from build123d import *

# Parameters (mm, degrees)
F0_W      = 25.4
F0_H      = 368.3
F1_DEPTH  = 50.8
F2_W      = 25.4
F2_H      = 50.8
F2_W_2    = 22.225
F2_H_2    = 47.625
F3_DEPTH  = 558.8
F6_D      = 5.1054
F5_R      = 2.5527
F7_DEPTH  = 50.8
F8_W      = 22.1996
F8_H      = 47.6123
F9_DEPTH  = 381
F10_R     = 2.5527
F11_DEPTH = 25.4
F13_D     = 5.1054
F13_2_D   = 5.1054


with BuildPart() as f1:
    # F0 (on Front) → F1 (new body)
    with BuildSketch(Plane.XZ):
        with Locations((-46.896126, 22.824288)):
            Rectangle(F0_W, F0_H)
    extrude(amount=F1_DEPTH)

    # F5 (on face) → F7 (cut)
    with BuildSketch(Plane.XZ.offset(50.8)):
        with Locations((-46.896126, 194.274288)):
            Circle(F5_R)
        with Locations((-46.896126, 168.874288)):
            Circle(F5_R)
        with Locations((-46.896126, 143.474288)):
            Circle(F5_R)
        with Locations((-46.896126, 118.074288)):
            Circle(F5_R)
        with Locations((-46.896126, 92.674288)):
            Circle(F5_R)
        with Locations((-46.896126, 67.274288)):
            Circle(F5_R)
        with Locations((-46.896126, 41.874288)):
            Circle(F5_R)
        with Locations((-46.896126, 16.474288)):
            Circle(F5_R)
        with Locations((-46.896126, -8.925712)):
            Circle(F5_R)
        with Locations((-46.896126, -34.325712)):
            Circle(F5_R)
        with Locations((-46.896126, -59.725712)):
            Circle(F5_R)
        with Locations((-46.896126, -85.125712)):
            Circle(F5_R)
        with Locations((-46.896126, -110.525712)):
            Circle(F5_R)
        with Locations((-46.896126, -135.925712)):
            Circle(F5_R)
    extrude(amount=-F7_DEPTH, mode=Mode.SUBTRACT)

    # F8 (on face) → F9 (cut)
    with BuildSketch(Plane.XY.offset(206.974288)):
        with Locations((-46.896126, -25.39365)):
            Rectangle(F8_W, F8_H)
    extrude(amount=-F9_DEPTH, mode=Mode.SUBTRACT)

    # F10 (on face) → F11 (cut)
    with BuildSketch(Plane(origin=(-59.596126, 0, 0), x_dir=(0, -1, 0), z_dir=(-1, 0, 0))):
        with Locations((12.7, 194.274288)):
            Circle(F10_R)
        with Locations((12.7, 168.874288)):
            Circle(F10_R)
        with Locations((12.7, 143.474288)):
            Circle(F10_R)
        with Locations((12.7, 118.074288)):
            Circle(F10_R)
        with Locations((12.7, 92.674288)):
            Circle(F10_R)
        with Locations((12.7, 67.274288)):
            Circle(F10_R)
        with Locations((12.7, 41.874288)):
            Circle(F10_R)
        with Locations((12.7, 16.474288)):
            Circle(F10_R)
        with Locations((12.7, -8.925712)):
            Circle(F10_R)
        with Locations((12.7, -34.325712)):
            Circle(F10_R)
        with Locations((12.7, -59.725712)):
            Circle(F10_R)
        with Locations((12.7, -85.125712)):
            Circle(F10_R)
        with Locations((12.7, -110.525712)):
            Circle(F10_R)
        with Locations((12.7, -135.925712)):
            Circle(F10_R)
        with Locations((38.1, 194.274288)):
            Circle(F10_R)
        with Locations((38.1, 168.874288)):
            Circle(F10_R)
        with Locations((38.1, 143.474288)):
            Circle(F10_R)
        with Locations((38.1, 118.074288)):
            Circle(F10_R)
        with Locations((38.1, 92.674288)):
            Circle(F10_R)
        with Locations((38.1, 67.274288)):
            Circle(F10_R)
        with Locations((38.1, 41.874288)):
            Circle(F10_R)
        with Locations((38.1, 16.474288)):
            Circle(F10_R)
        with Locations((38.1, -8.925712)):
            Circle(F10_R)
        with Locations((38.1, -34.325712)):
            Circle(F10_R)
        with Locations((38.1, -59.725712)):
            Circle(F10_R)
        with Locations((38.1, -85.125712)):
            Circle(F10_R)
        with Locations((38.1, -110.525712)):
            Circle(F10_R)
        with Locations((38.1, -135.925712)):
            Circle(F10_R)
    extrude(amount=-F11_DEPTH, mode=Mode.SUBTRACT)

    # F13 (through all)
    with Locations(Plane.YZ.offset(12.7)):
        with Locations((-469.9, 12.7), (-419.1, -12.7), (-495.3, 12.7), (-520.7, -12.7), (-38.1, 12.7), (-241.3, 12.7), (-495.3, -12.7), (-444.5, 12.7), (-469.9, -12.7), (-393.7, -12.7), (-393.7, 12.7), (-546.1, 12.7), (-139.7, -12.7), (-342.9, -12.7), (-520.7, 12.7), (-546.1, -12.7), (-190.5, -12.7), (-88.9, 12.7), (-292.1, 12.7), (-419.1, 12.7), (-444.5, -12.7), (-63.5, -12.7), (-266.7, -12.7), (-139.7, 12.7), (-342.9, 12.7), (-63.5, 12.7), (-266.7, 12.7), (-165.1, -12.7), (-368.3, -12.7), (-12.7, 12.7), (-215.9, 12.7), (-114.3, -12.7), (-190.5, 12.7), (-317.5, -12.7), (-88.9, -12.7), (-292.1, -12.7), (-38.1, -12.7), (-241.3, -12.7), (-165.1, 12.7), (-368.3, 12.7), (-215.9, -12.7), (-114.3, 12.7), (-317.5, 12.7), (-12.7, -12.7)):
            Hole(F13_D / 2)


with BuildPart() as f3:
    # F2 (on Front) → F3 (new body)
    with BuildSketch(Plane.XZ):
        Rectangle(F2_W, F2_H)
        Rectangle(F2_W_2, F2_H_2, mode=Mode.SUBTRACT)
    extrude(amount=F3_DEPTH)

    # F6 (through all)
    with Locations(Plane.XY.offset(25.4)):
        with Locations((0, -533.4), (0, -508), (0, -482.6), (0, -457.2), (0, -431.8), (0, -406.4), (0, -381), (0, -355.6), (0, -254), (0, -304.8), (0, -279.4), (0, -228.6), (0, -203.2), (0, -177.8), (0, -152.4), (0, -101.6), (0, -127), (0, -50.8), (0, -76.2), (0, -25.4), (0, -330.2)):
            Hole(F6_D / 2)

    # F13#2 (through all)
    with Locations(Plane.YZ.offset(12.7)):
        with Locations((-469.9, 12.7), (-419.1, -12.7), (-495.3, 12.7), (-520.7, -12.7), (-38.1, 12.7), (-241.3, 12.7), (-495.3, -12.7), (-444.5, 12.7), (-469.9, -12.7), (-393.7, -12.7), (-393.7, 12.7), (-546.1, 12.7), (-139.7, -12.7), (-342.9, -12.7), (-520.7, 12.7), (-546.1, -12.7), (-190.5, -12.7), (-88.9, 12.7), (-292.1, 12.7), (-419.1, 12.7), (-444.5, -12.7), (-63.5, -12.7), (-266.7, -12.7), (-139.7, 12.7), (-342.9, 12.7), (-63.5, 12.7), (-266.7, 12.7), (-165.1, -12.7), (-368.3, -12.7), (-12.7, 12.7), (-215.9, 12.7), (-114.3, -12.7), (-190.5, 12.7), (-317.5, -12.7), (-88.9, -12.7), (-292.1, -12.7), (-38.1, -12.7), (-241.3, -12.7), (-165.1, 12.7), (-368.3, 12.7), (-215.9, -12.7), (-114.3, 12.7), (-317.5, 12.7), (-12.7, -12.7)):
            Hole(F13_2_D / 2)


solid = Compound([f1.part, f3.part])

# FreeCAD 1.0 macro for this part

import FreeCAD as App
import Part
import Sketcher
from FreeCAD import Vector
Q = App.Units.Quantity

doc = App.newDocument("Part")
body = doc.addObject("PartDesign::Body", "Body")

# Sketch on XZ plane
sketch1 = body.newObject("Sketcher::SketchObject", "Sketch")
sketch1.AttachmentSupport = (doc.getObject("XZ_Plane"), [""])
sketch1.MapMode = "FlatFace"
sketch1.addGeometry([
    Part.LineSegment(Vector(-60, 207, 0), Vector(-60, -161, 0)),
    Part.LineSegment(Vector(-60, -161, 0), Vector(-34, -161, 0)),
    Part.LineSegment(Vector(-34, -161, 0), Vector(-34, 207, 0)),
    Part.LineSegment(Vector(-34, 207, 0), Vector(-60, 207, 0)),
], False)
sketch1.addConstraint([
    Sketcher.Constraint("Coincident", 0, 2, 1, 1),
    Sketcher.Constraint("Coincident", 1, 2, 2, 1),
    Sketcher.Constraint("Coincident", 2, 2, 3, 1),
    Sketcher.Constraint("Coincident", 3, 2, 0, 1),
    Sketcher.Constraint("Vertical", 0),
    Sketcher.Constraint("Horizontal", 1),
    Sketcher.Constraint("Vertical", 2),
    Sketcher.Constraint("Horizontal", 3),
    Sketcher.Constraint("DistanceX", 1, 1, 1, 2, Q("1 in")),
    Sketcher.Constraint("DistanceY", 0, 2, 0, 1, Q("14.5 in")),
    Sketcher.Constraint("DistanceY", -1, 1, 2, 2, 206.974288),
    Sketcher.Constraint("DistanceX", 0, 2, -1, 1, 59.596126),
])
pad1 = body.newObject("PartDesign::Pad", "Pad")
pad1.Profile = sketch1
pad1.Length = Q("2 in")

# Sketch on XZ plane
sketch2 = body.newObject("Sketcher::SketchObject", "Sketch001")
sketch2.AttachmentSupport = (doc.getObject("XZ_Plane"), [""])
sketch2.MapMode = "FlatFace"
sketch2.AttachmentOffset = App.Placement(Vector(0, 0, 2 * 25.4), App.Rotation())
sketch2.addGeometry([
    Part.Circle(Vector(-46.9, 194.3, 0), Vector(0, 0, 1), 2.6),  # 0
    Part.Circle(Vector(-46.9, 168.9, 0), Vector(0, 0, 1), 2.6),  # 1
    Part.Circle(Vector(-46.9, 143.5, 0), Vector(0, 0, 1), 2.6),  # 2
    Part.Circle(Vector(-46.9, 118.1, 0), Vector(0, 0, 1), 2.6),  # 3
    Part.Circle(Vector(-46.9, 92.7, 0), Vector(0, 0, 1), 2.6),  # 4
    Part.Circle(Vector(-46.9, 67.3, 0), Vector(0, 0, 1), 2.6),  # 5
    Part.Circle(Vector(-46.9, 41.9, 0), Vector(0, 0, 1), 2.6),  # 6
    Part.Circle(Vector(-46.9, 16.5, 0), Vector(0, 0, 1), 2.6),  # 7
    Part.Circle(Vector(-46.9, -8.9, 0), Vector(0, 0, 1), 2.6),  # 8
    Part.Circle(Vector(-46.9, -34.3, 0), Vector(0, 0, 1), 2.6),  # 9
    Part.Circle(Vector(-46.9, -59.7, 0), Vector(0, 0, 1), 2.6),  # 10
    Part.Circle(Vector(-46.9, -85.1, 0), Vector(0, 0, 1), 2.6),  # 11
    Part.Circle(Vector(-46.9, -110.5, 0), Vector(0, 0, 1), 2.6),  # 12
    Part.Circle(Vector(-46.9, -135.9, 0), Vector(0, 0, 1), 2.6),  # 13
], False)
sketch2.addConstraint([
    Sketcher.Constraint("Equal", 0, 1),
    Sketcher.Constraint("Equal", 1, 2),
    Sketcher.Constraint("Equal", 2, 3),
    Sketcher.Constraint("Equal", 3, 4),
    Sketcher.Constraint("Equal", 4, 5),
    Sketcher.Constraint("Equal", 5, 6),
    Sketcher.Constraint("Equal", 6, 7),
    Sketcher.Constraint("Equal", 7, 8),
    Sketcher.Constraint("Equal", 8, 9),
    Sketcher.Constraint("Equal", 9, 10),
    Sketcher.Constraint("Equal", 10, 11),
    Sketcher.Constraint("Equal", 11, 12),
    Sketcher.Constraint("Equal", 12, 13),
    Sketcher.Constraint("Vertical", 0, 3, 1, 3),
    Sketcher.Constraint("Vertical", 1, 3, 2, 3),
    Sketcher.Constraint("Vertical", 2, 3, 3, 3),
    Sketcher.Constraint("Vertical", 3, 3, 4, 3),
    Sketcher.Constraint("Vertical", 4, 3, 5, 3),
    Sketcher.Constraint("Vertical", 5, 3, 6, 3),
    Sketcher.Constraint("Vertical", 6, 3, 7, 3),
    Sketcher.Constraint("Vertical", 7, 3, 8, 3),
    Sketcher.Constraint("Vertical", 8, 3, 9, 3),
    Sketcher.Constraint("Vertical", 9, 3, 10, 3),
    Sketcher.Constraint("Vertical", 10, 3, 11, 3),
    Sketcher.Constraint("Vertical", 11, 3, 12, 3),
    Sketcher.Constraint("Vertical", 12, 3, 13, 3),
    Sketcher.Constraint("Diameter", 0, Q("0.201 in")),
    Sketcher.Constraint("DistanceY", 1, 3, 0, 3, Q("1 in")),
    Sketcher.Constraint("DistanceY", 2, 3, 1, 3, Q("1 in")),
    Sketcher.Constraint("DistanceY", 3, 3, 2, 3, Q("1 in")),
    Sketcher.Constraint("DistanceY", 4, 3, 3, 3, Q("1 in")),
    Sketcher.Constraint("DistanceY", 5, 3, 4, 3, Q("1 in")),
    Sketcher.Constraint("DistanceY", 6, 3, 5, 3, Q("1 in")),
    Sketcher.Constraint("DistanceY", 7, 3, 6, 3, Q("1 in")),
    Sketcher.Constraint("DistanceY", 8, 3, 7, 3, Q("1 in")),
    Sketcher.Constraint("DistanceY", 9, 3, 8, 3, Q("1 in")),
    Sketcher.Constraint("DistanceY", 10, 3, 9, 3, Q("1 in")),
    Sketcher.Constraint("DistanceY", 11, 3, 10, 3, Q("1 in")),
    Sketcher.Constraint("DistanceY", 12, 3, 11, 3, Q("1 in")),
    Sketcher.Constraint("DistanceY", 13, 3, 12, 3, Q("1 in")),
    Sketcher.Constraint("DistanceY", -1, 1, 0, 3, 194.274288),
    Sketcher.Constraint("DistanceX", 0, 3, -1, 1, 46.896126),
])
pocket1 = body.newObject("PartDesign::Pocket", "Pocket")
pocket1.Profile = sketch2
pocket1.Length = Q("2 in")

# Sketch on XY plane
sketch3 = body.newObject("Sketcher::SketchObject", "Sketch002")
sketch3.AttachmentSupport = (doc.getObject("XY_Plane"), [""])
sketch3.MapMode = "FlatFace"
sketch3.AttachmentOffset = App.Placement(Vector(0, 0, 206.974288), App.Rotation())
sketch3.addGeometry([
    Part.LineSegment(Vector(-58, -2, 0), Vector(-58, -49, 0)),
    Part.LineSegment(Vector(-58, -49, 0), Vector(-36, -49, 0)),
    Part.LineSegment(Vector(-36, -49, 0), Vector(-36, -2, 0)),
    Part.LineSegment(Vector(-36, -2, 0), Vector(-58, -2, 0)),
], False)
sketch3.addConstraint([
    Sketcher.Constraint("Coincident", 0, 2, 1, 1),
    Sketcher.Constraint("Coincident", 1, 2, 2, 1),
    Sketcher.Constraint("Coincident", 2, 2, 3, 1),
    Sketcher.Constraint("Coincident", 3, 2, 0, 1),
    Sketcher.Constraint("Vertical", 0),
    Sketcher.Constraint("Horizontal", 1),
    Sketcher.Constraint("Vertical", 2),
    Sketcher.Constraint("Horizontal", 3),
    Sketcher.Constraint("DistanceX", 1, 1, 1, 2, Q("0.874 in")),
    Sketcher.Constraint("DistanceY", 0, 2, 0, 1, Q("1.8745 in")),
    Sketcher.Constraint("DistanceY", 0, 2, -1, 1, Q("1.937 in")),
    Sketcher.Constraint("DistanceX", 0, 2, -1, 1, 57.995926),
])
pocket2 = body.newObject("PartDesign::Pocket", "Pocket001")
pocket2.Profile = sketch3
pocket2.Length = Q("15 in")

# Sketch on YZ plane
sketch4 = body.newObject("Sketcher::SketchObject", "Sketch003")
sketch4.AttachmentSupport = (doc.getObject("YZ_Plane"), [""])
sketch4.MapMode = "FlatFace"
sketch4.AttachmentOffset = App.Placement(Vector(0, 0, -59.596126), App.Rotation())
sketch4.addGeometry([
    Part.Circle(Vector(-12.7, 194.3, 0), Vector(0, 0, 1), 2.6),  # 0
    Part.Circle(Vector(-12.7, 168.9, 0), Vector(0, 0, 1), 2.6),  # 1
    Part.Circle(Vector(-12.7, 143.5, 0), Vector(0, 0, 1), 2.6),  # 2
    Part.Circle(Vector(-12.7, 118.1, 0), Vector(0, 0, 1), 2.6),  # 3
    Part.Circle(Vector(-12.7, 92.7, 0), Vector(0, 0, 1), 2.6),  # 4
    Part.Circle(Vector(-12.7, 67.3, 0), Vector(0, 0, 1), 2.6),  # 5
    Part.Circle(Vector(-12.7, 41.9, 0), Vector(0, 0, 1), 2.6),  # 6
    Part.Circle(Vector(-12.7, 16.5, 0), Vector(0, 0, 1), 2.6),  # 7
    Part.Circle(Vector(-12.7, -8.9, 0), Vector(0, 0, 1), 2.6),  # 8
    Part.Circle(Vector(-12.7, -34.3, 0), Vector(0, 0, 1), 2.6),  # 9
    Part.Circle(Vector(-12.7, -59.7, 0), Vector(0, 0, 1), 2.6),  # 10
    Part.Circle(Vector(-12.7, -85.1, 0), Vector(0, 0, 1), 2.6),  # 11
    Part.Circle(Vector(-12.7, -110.5, 0), Vector(0, 0, 1), 2.6),  # 12
    Part.Circle(Vector(-12.7, -135.9, 0), Vector(0, 0, 1), 2.6),  # 13
    Part.Circle(Vector(-38.1, 194.3, 0), Vector(0, 0, 1), 2.6),  # 14
    Part.Circle(Vector(-38.1, 168.9, 0), Vector(0, 0, 1), 2.6),  # 15
    Part.Circle(Vector(-38.1, 143.5, 0), Vector(0, 0, 1), 2.6),  # 16
    Part.Circle(Vector(-38.1, 118.1, 0), Vector(0, 0, 1), 2.6),  # 17
    Part.Circle(Vector(-38.1, 92.7, 0), Vector(0, 0, 1), 2.6),  # 18
    Part.Circle(Vector(-38.1, 67.3, 0), Vector(0, 0, 1), 2.6),  # 19
    Part.Circle(Vector(-38.1, 41.9, 0), Vector(0, 0, 1), 2.6),  # 20
    Part.Circle(Vector(-38.1, 16.5, 0), Vector(0, 0, 1), 2.6),  # 21
    Part.Circle(Vector(-38.1, -8.9, 0), Vector(0, 0, 1), 2.6),  # 22
    Part.Circle(Vector(-38.1, -34.3, 0), Vector(0, 0, 1), 2.6),  # 23
    Part.Circle(Vector(-38.1, -59.7, 0), Vector(0, 0, 1), 2.6),  # 24
    Part.Circle(Vector(-38.1, -85.1, 0), Vector(0, 0, 1), 2.6),  # 25
    Part.Circle(Vector(-38.1, -110.5, 0), Vector(0, 0, 1), 2.6),  # 26
    Part.Circle(Vector(-38.1, -135.9, 0), Vector(0, 0, 1), 2.6),  # 27
], False)
sketch4.addConstraint([
    Sketcher.Constraint("Equal", 0, 1),
    Sketcher.Constraint("Equal", 1, 2),
    Sketcher.Constraint("Equal", 2, 3),
    Sketcher.Constraint("Equal", 3, 4),
    Sketcher.Constraint("Equal", 4, 5),
    Sketcher.Constraint("Equal", 5, 6),
    Sketcher.Constraint("Equal", 6, 7),
    Sketcher.Constraint("Equal", 7, 8),
    Sketcher.Constraint("Equal", 8, 9),
    Sketcher.Constraint("Equal", 9, 10),
    Sketcher.Constraint("Equal", 10, 11),
    Sketcher.Constraint("Equal", 11, 12),
    Sketcher.Constraint("Equal", 12, 13),
    Sketcher.Constraint("Equal", 13, 14),
    Sketcher.Constraint("Equal", 14, 15),
    Sketcher.Constraint("Equal", 15, 16),
    Sketcher.Constraint("Equal", 16, 17),
    Sketcher.Constraint("Equal", 17, 18),
    Sketcher.Constraint("Equal", 18, 19),
    Sketcher.Constraint("Equal", 19, 20),
    Sketcher.Constraint("Equal", 20, 21),
    Sketcher.Constraint("Equal", 21, 22),
    Sketcher.Constraint("Equal", 22, 23),
    Sketcher.Constraint("Equal", 23, 24),
    Sketcher.Constraint("Equal", 24, 25),
    Sketcher.Constraint("Equal", 25, 26),
    Sketcher.Constraint("Equal", 26, 27),
    Sketcher.Constraint("Horizontal", 0, 3, 14, 3),
    Sketcher.Constraint("Horizontal", 1, 3, 15, 3),
    Sketcher.Constraint("Horizontal", 2, 3, 16, 3),
    Sketcher.Constraint("Horizontal", 3, 3, 17, 3),
    Sketcher.Constraint("Horizontal", 4, 3, 18, 3),
    Sketcher.Constraint("Horizontal", 5, 3, 19, 3),
    Sketcher.Constraint("Horizontal", 6, 3, 20, 3),
    Sketcher.Constraint("Horizontal", 7, 3, 21, 3),
    Sketcher.Constraint("Horizontal", 8, 3, 22, 3),
    Sketcher.Constraint("Horizontal", 9, 3, 23, 3),
    Sketcher.Constraint("Horizontal", 10, 3, 24, 3),
    Sketcher.Constraint("Horizontal", 11, 3, 25, 3),
    Sketcher.Constraint("Horizontal", 12, 3, 26, 3),
    Sketcher.Constraint("Horizontal", 13, 3, 27, 3),
    Sketcher.Constraint("Vertical", 0, 3, 1, 3),
    Sketcher.Constraint("Vertical", 1, 3, 2, 3),
    Sketcher.Constraint("Vertical", 2, 3, 3, 3),
    Sketcher.Constraint("Vertical", 3, 3, 4, 3),
    Sketcher.Constraint("Vertical", 4, 3, 5, 3),
    Sketcher.Constraint("Vertical", 5, 3, 6, 3),
    Sketcher.Constraint("Vertical", 6, 3, 7, 3),
    Sketcher.Constraint("Vertical", 7, 3, 8, 3),
    Sketcher.Constraint("Vertical", 8, 3, 9, 3),
    Sketcher.Constraint("Vertical", 9, 3, 10, 3),
    Sketcher.Constraint("Vertical", 10, 3, 11, 3),
    Sketcher.Constraint("Vertical", 11, 3, 12, 3),
    Sketcher.Constraint("Vertical", 12, 3, 13, 3),
    Sketcher.Constraint("Vertical", 14, 3, 15, 3),
    Sketcher.Constraint("Vertical", 15, 3, 16, 3),
    Sketcher.Constraint("Vertical", 16, 3, 17, 3),
    Sketcher.Constraint("Vertical", 17, 3, 18, 3),
    Sketcher.Constraint("Vertical", 18, 3, 19, 3),
    Sketcher.Constraint("Vertical", 19, 3, 20, 3),
    Sketcher.Constraint("Vertical", 20, 3, 21, 3),
    Sketcher.Constraint("Vertical", 21, 3, 22, 3),
    Sketcher.Constraint("Vertical", 22, 3, 23, 3),
    Sketcher.Constraint("Vertical", 23, 3, 24, 3),
    Sketcher.Constraint("Vertical", 24, 3, 25, 3),
    Sketcher.Constraint("Vertical", 25, 3, 26, 3),
    Sketcher.Constraint("Vertical", 26, 3, 27, 3),
    Sketcher.Constraint("Diameter", 0, Q("0.201 in")),
    Sketcher.Constraint("DistanceY", 1, 3, 0, 3, Q("1 in")),
    Sketcher.Constraint("DistanceY", 2, 3, 1, 3, Q("1 in")),
    Sketcher.Constraint("DistanceY", 3, 3, 2, 3, Q("1 in")),
    Sketcher.Constraint("DistanceY", 4, 3, 3, 3, Q("1 in")),
    Sketcher.Constraint("DistanceY", 5, 3, 4, 3, Q("1 in")),
    Sketcher.Constraint("DistanceY", 6, 3, 5, 3, Q("1 in")),
    Sketcher.Constraint("DistanceY", 7, 3, 6, 3, Q("1 in")),
    Sketcher.Constraint("DistanceY", 8, 3, 7, 3, Q("1 in")),
    Sketcher.Constraint("DistanceY", 9, 3, 8, 3, Q("1 in")),
    Sketcher.Constraint("DistanceY", 10, 3, 9, 3, Q("1 in")),
    Sketcher.Constraint("DistanceY", 11, 3, 10, 3, Q("1 in")),
    Sketcher.Constraint("DistanceY", 12, 3, 11, 3, Q("1 in")),
    Sketcher.Constraint("DistanceY", 13, 3, 12, 3, Q("1 in")),
    Sketcher.Constraint("DistanceX", 14, 3, 0, 3, Q("1 in")),
    Sketcher.Constraint("DistanceX", 0, 3, -1, 1, Q("0.5 in")),
    Sketcher.Constraint("DistanceY", -1, 1, 0, 3, 194.274288),
])
pocket3 = body.newObject("PartDesign::Pocket", "Pocket002")
pocket3.Profile = sketch4
pocket3.Length = Q("1 in")
pocket3.Reversed = True

# Sketch on YZ plane
sketch5 = body.newObject("Sketcher::SketchObject", "Sketch004")
sketch5.AttachmentSupport = (doc.getObject("YZ_Plane"), [""])
sketch5.MapMode = "FlatFace"
sketch5.AttachmentOffset = App.Placement(Vector(0, 0, 0.5 * 25.4), App.Rotation())
sketch5.addGeometry([
    Part.Circle(Vector(-469.9, 12.7, 0), Vector(0, 0, 1), 2.6),  # 0
    Part.Circle(Vector(-419.1, -12.7, 0), Vector(0, 0, 1), 2.6),  # 1
    Part.Circle(Vector(-495.3, 12.7, 0), Vector(0, 0, 1), 2.6),  # 2
    Part.Circle(Vector(-520.7, -12.7, 0), Vector(0, 0, 1), 2.6),  # 3
    Part.Circle(Vector(-38.1, 12.7, 0), Vector(0, 0, 1), 2.6),  # 4
    Part.Circle(Vector(-241.3, 12.7, 0), Vector(0, 0, 1), 2.6),  # 5
    Part.Circle(Vector(-495.3, -12.7, 0), Vector(0, 0, 1), 2.6),  # 6
    Part.Circle(Vector(-444.5, 12.7, 0), Vector(0, 0, 1), 2.6),  # 7
    Part.Circle(Vector(-469.9, -12.7, 0), Vector(0, 0, 1), 2.6),  # 8
    Part.Circle(Vector(-393.7, -12.7, 0), Vector(0, 0, 1), 2.6),  # 9
    Part.Circle(Vector(-393.7, 12.7, 0), Vector(0, 0, 1), 2.6),  # 10
    Part.Circle(Vector(-546.1, 12.7, 0), Vector(0, 0, 1), 2.6),  # 11
    Part.Circle(Vector(-139.7, -12.7, 0), Vector(0, 0, 1), 2.6),  # 12
    Part.Circle(Vector(-342.9, -12.7, 0), Vector(0, 0, 1), 2.6),  # 13
    Part.Circle(Vector(-520.7, 12.7, 0), Vector(0, 0, 1), 2.6),  # 14
    Part.Circle(Vector(-546.1, -12.7, 0), Vector(0, 0, 1), 2.6),  # 15
    Part.Circle(Vector(-190.5, -12.7, 0), Vector(0, 0, 1), 2.6),  # 16
    Part.Circle(Vector(-88.9, 12.7, 0), Vector(0, 0, 1), 2.6),  # 17
    Part.Circle(Vector(-292.1, 12.7, 0), Vector(0, 0, 1), 2.6),  # 18
    Part.Circle(Vector(-419.1, 12.7, 0), Vector(0, 0, 1), 2.6),  # 19
    Part.Circle(Vector(-444.5, -12.7, 0), Vector(0, 0, 1), 2.6),  # 20
    Part.Circle(Vector(-63.5, -12.7, 0), Vector(0, 0, 1), 2.6),  # 21
    Part.Circle(Vector(-266.7, -12.7, 0), Vector(0, 0, 1), 2.6),  # 22
    Part.Circle(Vector(-139.7, 12.7, 0), Vector(0, 0, 1), 2.6),  # 23
    Part.Circle(Vector(-342.9, 12.7, 0), Vector(0, 0, 1), 2.6),  # 24
    Part.Circle(Vector(-63.5, 12.7, 0), Vector(0, 0, 1), 2.6),  # 25
    Part.Circle(Vector(-266.7, 12.7, 0), Vector(0, 0, 1), 2.6),  # 26
    Part.Circle(Vector(-165.1, -12.7, 0), Vector(0, 0, 1), 2.6),  # 27
    Part.Circle(Vector(-368.3, -12.7, 0), Vector(0, 0, 1), 2.6),  # 28
    Part.Circle(Vector(-12.7, 12.7, 0), Vector(0, 0, 1), 2.6),  # 29
    Part.Circle(Vector(-215.9, 12.7, 0), Vector(0, 0, 1), 2.6),  # 30
    Part.Circle(Vector(-114.3, -12.7, 0), Vector(0, 0, 1), 2.6),  # 31
    Part.Circle(Vector(-190.5, 12.7, 0), Vector(0, 0, 1), 2.6),  # 32
    Part.Circle(Vector(-317.5, -12.7, 0), Vector(0, 0, 1), 2.6),  # 33
    Part.Circle(Vector(-88.9, -12.7, 0), Vector(0, 0, 1), 2.6),  # 34
    Part.Circle(Vector(-292.1, -12.7, 0), Vector(0, 0, 1), 2.6),  # 35
    Part.Circle(Vector(-38.1, -12.7, 0), Vector(0, 0, 1), 2.6),  # 36
    Part.Circle(Vector(-241.3, -12.7, 0), Vector(0, 0, 1), 2.6),  # 37
    Part.Circle(Vector(-165.1, 12.7, 0), Vector(0, 0, 1), 2.6),  # 38
    Part.Circle(Vector(-368.3, 12.7, 0), Vector(0, 0, 1), 2.6),  # 39
    Part.Circle(Vector(-215.9, -12.7, 0), Vector(0, 0, 1), 2.6),  # 40
    Part.Circle(Vector(-114.3, 12.7, 0), Vector(0, 0, 1), 2.6),  # 41
    Part.Circle(Vector(-317.5, 12.7, 0), Vector(0, 0, 1), 2.6),  # 42
    Part.Circle(Vector(-12.7, -12.7, 0), Vector(0, 0, 1), 2.6),  # 43
], False)
sketch5.addConstraint([
    Sketcher.Constraint("Equal", 0, 1),
    Sketcher.Constraint("Equal", 1, 2),
    Sketcher.Constraint("Equal", 2, 3),
    Sketcher.Constraint("Equal", 3, 4),
    Sketcher.Constraint("Equal", 4, 5),
    Sketcher.Constraint("Equal", 5, 6),
    Sketcher.Constraint("Equal", 6, 7),
    Sketcher.Constraint("Equal", 7, 8),
    Sketcher.Constraint("Equal", 8, 9),
    Sketcher.Constraint("Equal", 9, 10),
    Sketcher.Constraint("Equal", 10, 11),
    Sketcher.Constraint("Equal", 11, 12),
    Sketcher.Constraint("Equal", 12, 13),
    Sketcher.Constraint("Equal", 13, 14),
    Sketcher.Constraint("Equal", 14, 15),
    Sketcher.Constraint("Equal", 15, 16),
    Sketcher.Constraint("Equal", 16, 17),
    Sketcher.Constraint("Equal", 17, 18),
    Sketcher.Constraint("Equal", 18, 19),
    Sketcher.Constraint("Equal", 19, 20),
    Sketcher.Constraint("Equal", 20, 21),
    Sketcher.Constraint("Equal", 21, 22),
    Sketcher.Constraint("Equal", 22, 23),
    Sketcher.Constraint("Equal", 23, 24),
    Sketcher.Constraint("Equal", 24, 25),
    Sketcher.Constraint("Equal", 25, 26),
    Sketcher.Constraint("Equal", 26, 27),
    Sketcher.Constraint("Equal", 27, 28),
    Sketcher.Constraint("Equal", 28, 29),
    Sketcher.Constraint("Equal", 29, 30),
    Sketcher.Constraint("Equal", 30, 31),
    Sketcher.Constraint("Equal", 31, 32),
    Sketcher.Constraint("Equal", 32, 33),
    Sketcher.Constraint("Equal", 33, 34),
    Sketcher.Constraint("Equal", 34, 35),
    Sketcher.Constraint("Equal", 35, 36),
    Sketcher.Constraint("Equal", 36, 37),
    Sketcher.Constraint("Equal", 37, 38),
    Sketcher.Constraint("Equal", 38, 39),
    Sketcher.Constraint("Equal", 39, 40),
    Sketcher.Constraint("Equal", 40, 41),
    Sketcher.Constraint("Equal", 41, 42),
    Sketcher.Constraint("Equal", 42, 43),
    Sketcher.Constraint("Symmetric", 2, 3, 6, 3, -1),
    Sketcher.Constraint("Symmetric", 0, 3, 8, 3, -1),
    Sketcher.Constraint("Symmetric", 9, 3, 10, 3, -1),
    Sketcher.Constraint("Symmetric", 3, 3, 14, 3, -1),
    Sketcher.Constraint("Symmetric", 11, 3, 15, 3, -1),
    Sketcher.Constraint("Symmetric", 1, 3, 19, 3, -1),
    Sketcher.Constraint("Symmetric", 7, 3, 20, 3, -1),
    Sketcher.Constraint("Symmetric", 12, 3, 23, 3, -1),
    Sketcher.Constraint("Symmetric", 13, 3, 24, 3, -1),
    Sketcher.Constraint("Symmetric", 21, 3, 25, 3, -1),
    Sketcher.Constraint("Symmetric", 22, 3, 26, 3, -1),
    Sketcher.Constraint("Symmetric", 16, 3, 32, 3, -1),
    Sketcher.Constraint("Symmetric", 17, 3, 34, 3, -1),
    Sketcher.Constraint("Symmetric", 18, 3, 35, 3, -1),
    Sketcher.Constraint("Symmetric", 4, 3, 36, 3, -1),
    Sketcher.Constraint("Symmetric", 5, 3, 37, 3, -1),
    Sketcher.Constraint("Symmetric", 27, 3, 38, 3, -1),
    Sketcher.Constraint("Symmetric", 28, 3, 39, 3, -1),
    Sketcher.Constraint("Symmetric", 30, 3, 40, 3, -1),
    Sketcher.Constraint("Symmetric", 31, 3, 41, 3, -1),
    Sketcher.Constraint("Symmetric", 33, 3, 42, 3, -1),
    Sketcher.Constraint("Symmetric", 29, 3, 43, 3, -1),
    Sketcher.Constraint("Horizontal", 0, 3, 2, 3),
    Sketcher.Constraint("Horizontal", 1, 3, 3, 3),
    Sketcher.Constraint("Horizontal", 2, 3, 4, 3),
    Sketcher.Constraint("Horizontal", 4, 3, 5, 3),
    Sketcher.Constraint("Horizontal", 3, 3, 6, 3),
    Sketcher.Constraint("Horizontal", 5, 3, 7, 3),
    Sketcher.Constraint("Horizontal", 8, 3, 9, 3),
    Sketcher.Constraint("Horizontal", 10, 3, 11, 3),
    Sketcher.Constraint("Horizontal", 9, 3, 12, 3),
    Sketcher.Constraint("Horizontal", 12, 3, 13, 3),
    Sketcher.Constraint("Horizontal", 15, 3, 16, 3),
    Sketcher.Constraint("Horizontal", 14, 3, 17, 3),
    Sketcher.Constraint("Horizontal", 17, 3, 18, 3),
    Sketcher.Constraint("Horizontal", 20, 3, 21, 3),
    Sketcher.Constraint("Horizontal", 21, 3, 22, 3),
    Sketcher.Constraint("Horizontal", 22, 3, 27, 3),
    Sketcher.Constraint("Horizontal", 27, 3, 28, 3),
    Sketcher.Constraint("Horizontal", 26, 3, 29, 3),
    Sketcher.Constraint("Horizontal", 29, 3, 30, 3),
    Sketcher.Constraint("Horizontal", 28, 3, 31, 3),
    Sketcher.Constraint("Horizontal", 31, 3, 33, 3),
    Sketcher.Constraint("Diameter", 0, Q("0.201 in")),
    Sketcher.Constraint("DistanceX", 0, 3, 1, 3, Q("2 in")),
    Sketcher.Constraint("DistanceY", 1, 3, 0, 3, Q("1 in")),
    Sketcher.Constraint("DistanceX", 2, 3, 0, 3, Q("1 in")),
    Sketcher.Constraint("DistanceX", 3, 3, 2, 3, Q("1 in")),
    Sketcher.Constraint("DistanceX", 1, 3, 4, 3, Q("15 in")),
    Sketcher.Constraint("DistanceX", 1, 3, 5, 3, Q("7 in")),
    Sketcher.Constraint("DistanceX", 0, 3, 7, 3, Q("1 in")),
    Sketcher.Constraint("DistanceX", 1, 3, 9, 3, Q("1 in")),
    Sketcher.Constraint("DistanceX", 11, 3, 3, 3, Q("1 in")),
    Sketcher.Constraint("DistanceX", 12, 3, 4, 3, Q("4 in")),
    Sketcher.Constraint("DistanceX", 9, 3, 13, 3, Q("2 in")),
    Sketcher.Constraint("DistanceX", 16, 3, 12, 3, Q("2 in")),
    Sketcher.Constraint("DistanceX", 17, 3, 4, 3, Q("2 in")),
    Sketcher.Constraint("DistanceX", 18, 3, 5, 3, Q("2 in")),
    Sketcher.Constraint("DistanceX", 21, 3, 4, 3, Q("1 in")),
    Sketcher.Constraint("DistanceX", 22, 3, 5, 3, Q("1 in")),
    Sketcher.Constraint("DistanceX", 27, 3, 12, 3, Q("1 in")),
    Sketcher.Constraint("DistanceX", 9, 3, 28, 3, Q("1 in")),
    Sketcher.Constraint("DistanceX", 4, 3, 29, 3, Q("1 in")),
    Sketcher.Constraint("DistanceX", 5, 3, 30, 3, Q("1 in")),
    Sketcher.Constraint("DistanceX", 12, 3, 31, 3, Q("1 in")),
    Sketcher.Constraint("DistanceX", 13, 3, 33, 3, Q("1 in")),
    Sketcher.Constraint("DistanceX", 0, 3, -1, 1, Q("18.5 in")),
])
doc.recompute()
hole = body.newObject("PartDesign::Hole", "Hole")
hole.Profile = sketch5
hole.ThreadType = "None"
hole.Diameter = Q("0.201 in")
hole.DepthType = "ThroughAll"
body2 = doc.addObject("PartDesign::Body", "Body001")

# Sketch on XZ plane
sketch6 = body2.newObject("Sketcher::SketchObject", "Sketch005")
sketch6.AttachmentSupport = (doc.getObject("XZ_Plane001"), [""])
sketch6.MapMode = "FlatFace"
sketch6.addGeometry([
    Part.LineSegment(Vector(-13, 25, 0), Vector(-13, -25, 0)),  # 0
    Part.LineSegment(Vector(-13, -25, 0), Vector(13, -25, 0)),  # 1
    Part.LineSegment(Vector(13, -25, 0), Vector(13, 25, 0)),  # 2
    Part.LineSegment(Vector(13, 25, 0), Vector(-13, 25, 0)),  # 3
    Part.LineSegment(Vector(11, -24, 0), Vector(-11, -24, 0)),  # 4
    Part.LineSegment(Vector(-11, -24, 0), Vector(-11, 24, 0)),  # 5
    Part.LineSegment(Vector(-11, 24, 0), Vector(11, 24, 0)),  # 6
    Part.LineSegment(Vector(11, 24, 0), Vector(11, -24, 0)),  # 7
], False)
sketch6.addConstraint([
    Sketcher.Constraint("Coincident", 0, 2, 1, 1),
    Sketcher.Constraint("Coincident", 1, 2, 2, 1),
    Sketcher.Constraint("Coincident", 2, 2, 3, 1),
    Sketcher.Constraint("Coincident", 3, 2, 0, 1),
    Sketcher.Constraint("Coincident", 4, 2, 5, 1),
    Sketcher.Constraint("Coincident", 5, 2, 6, 1),
    Sketcher.Constraint("Coincident", 6, 2, 7, 1),
    Sketcher.Constraint("Coincident", 7, 2, 4, 1),
    Sketcher.Constraint("Vertical", 0),
    Sketcher.Constraint("Horizontal", 1),
    Sketcher.Constraint("Vertical", 2),
    Sketcher.Constraint("Horizontal", 3),
    Sketcher.Constraint("Horizontal", 4),
    Sketcher.Constraint("Vertical", 5),
    Sketcher.Constraint("Horizontal", 6),
    Sketcher.Constraint("Vertical", 7),
    Sketcher.Constraint("Symmetric", 0, 2, 2, 2, -1, 1),
    Sketcher.Constraint("Symmetric", 4, 2, 6, 2, -1, 1),
    Sketcher.Constraint("DistanceX", 1, 1, 1, 2, Q("1 in")),
    Sketcher.Constraint("DistanceY", 0, 2, 0, 1, Q("2 in")),
    Sketcher.Constraint("DistanceX", 4, 2, 4, 1, Q("0.875 in")),
    Sketcher.Constraint("DistanceY", 5, 1, 5, 2, Q("1.875 in")),
])
pad2 = body2.newObject("PartDesign::Pad", "Pad001")
pad2.Profile = sketch6
pad2.Length = Q("22 in")

# Sketch on XY plane
sketch7 = body2.newObject("Sketcher::SketchObject", "Sketch006")
sketch7.AttachmentSupport = (doc.getObject("XY_Plane001"), [""])
sketch7.MapMode = "FlatFace"
sketch7.AttachmentOffset = App.Placement(Vector(0, 0, 1 * 25.4), App.Rotation())
sketch7.addGeometry([
    Part.Circle(Vector(0, -533.4, 0), Vector(0, 0, 1), 2.6),  # 0
    Part.Circle(Vector(0, -508, 0), Vector(0, 0, 1), 2.6),  # 1
    Part.Circle(Vector(0, -482.6, 0), Vector(0, 0, 1), 2.6),  # 2
    Part.Circle(Vector(0, -457.2, 0), Vector(0, 0, 1), 2.6),  # 3
    Part.Circle(Vector(0, -431.8, 0), Vector(0, 0, 1), 2.6),  # 4
    Part.Circle(Vector(0, -406.4, 0), Vector(0, 0, 1), 2.6),  # 5
    Part.Circle(Vector(0, -381, 0), Vector(0, 0, 1), 2.6),  # 6
    Part.Circle(Vector(0, -355.6, 0), Vector(0, 0, 1), 2.6),  # 7
    Part.Circle(Vector(0, -254, 0), Vector(0, 0, 1), 2.6),  # 8
    Part.Circle(Vector(0, -304.8, 0), Vector(0, 0, 1), 2.6),  # 9
    Part.Circle(Vector(0, -279.4, 0), Vector(0, 0, 1), 2.6),  # 10
    Part.Circle(Vector(0, -228.6, 0), Vector(0, 0, 1), 2.6),  # 11
    Part.Circle(Vector(0, -203.2, 0), Vector(0, 0, 1), 2.6),  # 12
    Part.Circle(Vector(0, -177.8, 0), Vector(0, 0, 1), 2.6),  # 13
    Part.Circle(Vector(0, -152.4, 0), Vector(0, 0, 1), 2.6),  # 14
    Part.Circle(Vector(0, -101.6, 0), Vector(0, 0, 1), 2.6),  # 15
    Part.Circle(Vector(0, -127, 0), Vector(0, 0, 1), 2.6),  # 16
    Part.Circle(Vector(0, -50.8, 0), Vector(0, 0, 1), 2.6),  # 17
    Part.Circle(Vector(0, -76.2, 0), Vector(0, 0, 1), 2.6),  # 18
    Part.Circle(Vector(0, -25.4, 0), Vector(0, 0, 1), 2.6),  # 19
    Part.Circle(Vector(0, -330.2, 0), Vector(0, 0, 1), 2.6),  # 20
], False)
sketch7.addConstraint([
    Sketcher.Constraint("Equal", 0, 1),
    Sketcher.Constraint("Equal", 1, 2),
    Sketcher.Constraint("Equal", 2, 3),
    Sketcher.Constraint("Equal", 3, 4),
    Sketcher.Constraint("Equal", 4, 5),
    Sketcher.Constraint("Equal", 5, 6),
    Sketcher.Constraint("Equal", 6, 7),
    Sketcher.Constraint("Equal", 7, 8),
    Sketcher.Constraint("Equal", 8, 9),
    Sketcher.Constraint("Equal", 9, 10),
    Sketcher.Constraint("Equal", 10, 11),
    Sketcher.Constraint("Equal", 11, 12),
    Sketcher.Constraint("Equal", 12, 13),
    Sketcher.Constraint("Equal", 13, 14),
    Sketcher.Constraint("Equal", 14, 15),
    Sketcher.Constraint("Equal", 15, 16),
    Sketcher.Constraint("Equal", 16, 17),
    Sketcher.Constraint("Equal", 17, 18),
    Sketcher.Constraint("Equal", 18, 19),
    Sketcher.Constraint("Equal", 19, 20),
    Sketcher.Constraint("PointOnObject", 0, 3, -2),
    Sketcher.Constraint("PointOnObject", 1, 3, -2),
    Sketcher.Constraint("PointOnObject", 2, 3, -2),
    Sketcher.Constraint("PointOnObject", 3, 3, -2),
    Sketcher.Constraint("PointOnObject", 4, 3, -2),
    Sketcher.Constraint("PointOnObject", 5, 3, -2),
    Sketcher.Constraint("PointOnObject", 6, 3, -2),
    Sketcher.Constraint("PointOnObject", 7, 3, -2),
    Sketcher.Constraint("PointOnObject", 8, 3, -2),
    Sketcher.Constraint("PointOnObject", 9, 3, -2),
    Sketcher.Constraint("PointOnObject", 10, 3, -2),
    Sketcher.Constraint("PointOnObject", 11, 3, -2),
    Sketcher.Constraint("PointOnObject", 12, 3, -2),
    Sketcher.Constraint("PointOnObject", 13, 3, -2),
    Sketcher.Constraint("PointOnObject", 14, 3, -2),
    Sketcher.Constraint("PointOnObject", 15, 3, -2),
    Sketcher.Constraint("PointOnObject", 16, 3, -2),
    Sketcher.Constraint("PointOnObject", 17, 3, -2),
    Sketcher.Constraint("PointOnObject", 18, 3, -2),
    Sketcher.Constraint("PointOnObject", 19, 3, -2),
    Sketcher.Constraint("PointOnObject", 20, 3, -2),
    Sketcher.Constraint("Diameter", 0, Q("0.201 in")),
    Sketcher.Constraint("DistanceY", 0, 3, -1, 1, Q("21 in")),
    Sketcher.Constraint("DistanceY", 1, 3, -1, 1, Q("20 in")),
    Sketcher.Constraint("DistanceY", 2, 3, -1, 1, Q("19 in")),
    Sketcher.Constraint("DistanceY", 3, 3, -1, 1, Q("18 in")),
    Sketcher.Constraint("DistanceY", 4, 3, -1, 1, Q("17 in")),
    Sketcher.Constraint("DistanceY", 5, 3, -1, 1, Q("16 in")),
    Sketcher.Constraint("DistanceY", 6, 3, -1, 1, Q("15 in")),
    Sketcher.Constraint("DistanceY", 7, 3, -1, 1, Q("14 in")),
    Sketcher.Constraint("DistanceY", 8, 3, -1, 1, Q("10 in")),
    Sketcher.Constraint("DistanceY", 9, 3, -1, 1, Q("12 in")),
    Sketcher.Constraint("DistanceY", 10, 3, -1, 1, Q("11 in")),
    Sketcher.Constraint("DistanceY", 11, 3, -1, 1, Q("9 in")),
    Sketcher.Constraint("DistanceY", 12, 3, -1, 1, Q("8 in")),
    Sketcher.Constraint("DistanceY", 13, 3, -1, 1, Q("7 in")),
    Sketcher.Constraint("DistanceY", 14, 3, -1, 1, Q("6 in")),
    Sketcher.Constraint("DistanceY", 15, 3, -1, 1, Q("4 in")),
    Sketcher.Constraint("DistanceY", 16, 3, -1, 1, Q("5 in")),
    Sketcher.Constraint("DistanceY", 17, 3, -1, 1, Q("2 in")),
    Sketcher.Constraint("DistanceY", 18, 3, -1, 1, Q("3 in")),
    Sketcher.Constraint("DistanceY", 19, 3, -1, 1, Q("1 in")),
    Sketcher.Constraint("DistanceY", 20, 3, -1, 1, Q("13 in")),
])
doc.recompute()
hole2 = body2.newObject("PartDesign::Hole", "Hole001")
hole2.Profile = sketch7
hole2.ThreadType = "None"
hole2.Diameter = Q("0.201 in")
hole2.DepthType = "ThroughAll"

# Sketch on YZ plane
sketch8 = body2.newObject("Sketcher::SketchObject", "Sketch007")
sketch8.AttachmentSupport = (doc.getObject("YZ_Plane001"), [""])
sketch8.MapMode = "FlatFace"
sketch8.AttachmentOffset = App.Placement(Vector(0, 0, 0.5 * 25.4), App.Rotation())
sketch8.addGeometry([
    Part.Circle(Vector(-469.9, 12.7, 0), Vector(0, 0, 1), 2.6),  # 0
    Part.Circle(Vector(-419.1, -12.7, 0), Vector(0, 0, 1), 2.6),  # 1
    Part.Circle(Vector(-495.3, 12.7, 0), Vector(0, 0, 1), 2.6),  # 2
    Part.Circle(Vector(-520.7, -12.7, 0), Vector(0, 0, 1), 2.6),  # 3
    Part.Circle(Vector(-38.1, 12.7, 0), Vector(0, 0, 1), 2.6),  # 4
    Part.Circle(Vector(-241.3, 12.7, 0), Vector(0, 0, 1), 2.6),  # 5
    Part.Circle(Vector(-495.3, -12.7, 0), Vector(0, 0, 1), 2.6),  # 6
    Part.Circle(Vector(-444.5, 12.7, 0), Vector(0, 0, 1), 2.6),  # 7
    Part.Circle(Vector(-469.9, -12.7, 0), Vector(0, 0, 1), 2.6),  # 8
    Part.Circle(Vector(-393.7, -12.7, 0), Vector(0, 0, 1), 2.6),  # 9
    Part.Circle(Vector(-393.7, 12.7, 0), Vector(0, 0, 1), 2.6),  # 10
    Part.Circle(Vector(-546.1, 12.7, 0), Vector(0, 0, 1), 2.6),  # 11
    Part.Circle(Vector(-139.7, -12.7, 0), Vector(0, 0, 1), 2.6),  # 12
    Part.Circle(Vector(-342.9, -12.7, 0), Vector(0, 0, 1), 2.6),  # 13
    Part.Circle(Vector(-520.7, 12.7, 0), Vector(0, 0, 1), 2.6),  # 14
    Part.Circle(Vector(-546.1, -12.7, 0), Vector(0, 0, 1), 2.6),  # 15
    Part.Circle(Vector(-190.5, -12.7, 0), Vector(0, 0, 1), 2.6),  # 16
    Part.Circle(Vector(-88.9, 12.7, 0), Vector(0, 0, 1), 2.6),  # 17
    Part.Circle(Vector(-292.1, 12.7, 0), Vector(0, 0, 1), 2.6),  # 18
    Part.Circle(Vector(-419.1, 12.7, 0), Vector(0, 0, 1), 2.6),  # 19
    Part.Circle(Vector(-444.5, -12.7, 0), Vector(0, 0, 1), 2.6),  # 20
    Part.Circle(Vector(-63.5, -12.7, 0), Vector(0, 0, 1), 2.6),  # 21
    Part.Circle(Vector(-266.7, -12.7, 0), Vector(0, 0, 1), 2.6),  # 22
    Part.Circle(Vector(-139.7, 12.7, 0), Vector(0, 0, 1), 2.6),  # 23
    Part.Circle(Vector(-342.9, 12.7, 0), Vector(0, 0, 1), 2.6),  # 24
    Part.Circle(Vector(-63.5, 12.7, 0), Vector(0, 0, 1), 2.6),  # 25
    Part.Circle(Vector(-266.7, 12.7, 0), Vector(0, 0, 1), 2.6),  # 26
    Part.Circle(Vector(-165.1, -12.7, 0), Vector(0, 0, 1), 2.6),  # 27
    Part.Circle(Vector(-368.3, -12.7, 0), Vector(0, 0, 1), 2.6),  # 28
    Part.Circle(Vector(-12.7, 12.7, 0), Vector(0, 0, 1), 2.6),  # 29
    Part.Circle(Vector(-215.9, 12.7, 0), Vector(0, 0, 1), 2.6),  # 30
    Part.Circle(Vector(-114.3, -12.7, 0), Vector(0, 0, 1), 2.6),  # 31
    Part.Circle(Vector(-190.5, 12.7, 0), Vector(0, 0, 1), 2.6),  # 32
    Part.Circle(Vector(-317.5, -12.7, 0), Vector(0, 0, 1), 2.6),  # 33
    Part.Circle(Vector(-88.9, -12.7, 0), Vector(0, 0, 1), 2.6),  # 34
    Part.Circle(Vector(-292.1, -12.7, 0), Vector(0, 0, 1), 2.6),  # 35
    Part.Circle(Vector(-38.1, -12.7, 0), Vector(0, 0, 1), 2.6),  # 36
    Part.Circle(Vector(-241.3, -12.7, 0), Vector(0, 0, 1), 2.6),  # 37
    Part.Circle(Vector(-165.1, 12.7, 0), Vector(0, 0, 1), 2.6),  # 38
    Part.Circle(Vector(-368.3, 12.7, 0), Vector(0, 0, 1), 2.6),  # 39
    Part.Circle(Vector(-215.9, -12.7, 0), Vector(0, 0, 1), 2.6),  # 40
    Part.Circle(Vector(-114.3, 12.7, 0), Vector(0, 0, 1), 2.6),  # 41
    Part.Circle(Vector(-317.5, 12.7, 0), Vector(0, 0, 1), 2.6),  # 42
    Part.Circle(Vector(-12.7, -12.7, 0), Vector(0, 0, 1), 2.6),  # 43
], False)
sketch8.addConstraint([
    Sketcher.Constraint("Equal", 0, 1),
    Sketcher.Constraint("Equal", 1, 2),
    Sketcher.Constraint("Equal", 2, 3),
    Sketcher.Constraint("Equal", 3, 4),
    Sketcher.Constraint("Equal", 4, 5),
    Sketcher.Constraint("Equal", 5, 6),
    Sketcher.Constraint("Equal", 6, 7),
    Sketcher.Constraint("Equal", 7, 8),
    Sketcher.Constraint("Equal", 8, 9),
    Sketcher.Constraint("Equal", 9, 10),
    Sketcher.Constraint("Equal", 10, 11),
    Sketcher.Constraint("Equal", 11, 12),
    Sketcher.Constraint("Equal", 12, 13),
    Sketcher.Constraint("Equal", 13, 14),
    Sketcher.Constraint("Equal", 14, 15),
    Sketcher.Constraint("Equal", 15, 16),
    Sketcher.Constraint("Equal", 16, 17),
    Sketcher.Constraint("Equal", 17, 18),
    Sketcher.Constraint("Equal", 18, 19),
    Sketcher.Constraint("Equal", 19, 20),
    Sketcher.Constraint("Equal", 20, 21),
    Sketcher.Constraint("Equal", 21, 22),
    Sketcher.Constraint("Equal", 22, 23),
    Sketcher.Constraint("Equal", 23, 24),
    Sketcher.Constraint("Equal", 24, 25),
    Sketcher.Constraint("Equal", 25, 26),
    Sketcher.Constraint("Equal", 26, 27),
    Sketcher.Constraint("Equal", 27, 28),
    Sketcher.Constraint("Equal", 28, 29),
    Sketcher.Constraint("Equal", 29, 30),
    Sketcher.Constraint("Equal", 30, 31),
    Sketcher.Constraint("Equal", 31, 32),
    Sketcher.Constraint("Equal", 32, 33),
    Sketcher.Constraint("Equal", 33, 34),
    Sketcher.Constraint("Equal", 34, 35),
    Sketcher.Constraint("Equal", 35, 36),
    Sketcher.Constraint("Equal", 36, 37),
    Sketcher.Constraint("Equal", 37, 38),
    Sketcher.Constraint("Equal", 38, 39),
    Sketcher.Constraint("Equal", 39, 40),
    Sketcher.Constraint("Equal", 40, 41),
    Sketcher.Constraint("Equal", 41, 42),
    Sketcher.Constraint("Equal", 42, 43),
    Sketcher.Constraint("Symmetric", 2, 3, 6, 3, -1),
    Sketcher.Constraint("Symmetric", 0, 3, 8, 3, -1),
    Sketcher.Constraint("Symmetric", 9, 3, 10, 3, -1),
    Sketcher.Constraint("Symmetric", 3, 3, 14, 3, -1),
    Sketcher.Constraint("Symmetric", 11, 3, 15, 3, -1),
    Sketcher.Constraint("Symmetric", 1, 3, 19, 3, -1),
    Sketcher.Constraint("Symmetric", 7, 3, 20, 3, -1),
    Sketcher.Constraint("Symmetric", 12, 3, 23, 3, -1),
    Sketcher.Constraint("Symmetric", 13, 3, 24, 3, -1),
    Sketcher.Constraint("Symmetric", 21, 3, 25, 3, -1),
    Sketcher.Constraint("Symmetric", 22, 3, 26, 3, -1),
    Sketcher.Constraint("Symmetric", 16, 3, 32, 3, -1),
    Sketcher.Constraint("Symmetric", 17, 3, 34, 3, -1),
    Sketcher.Constraint("Symmetric", 18, 3, 35, 3, -1),
    Sketcher.Constraint("Symmetric", 4, 3, 36, 3, -1),
    Sketcher.Constraint("Symmetric", 5, 3, 37, 3, -1),
    Sketcher.Constraint("Symmetric", 27, 3, 38, 3, -1),
    Sketcher.Constraint("Symmetric", 28, 3, 39, 3, -1),
    Sketcher.Constraint("Symmetric", 30, 3, 40, 3, -1),
    Sketcher.Constraint("Symmetric", 31, 3, 41, 3, -1),
    Sketcher.Constraint("Symmetric", 33, 3, 42, 3, -1),
    Sketcher.Constraint("Symmetric", 29, 3, 43, 3, -1),
    Sketcher.Constraint("Horizontal", 0, 3, 2, 3),
    Sketcher.Constraint("Horizontal", 1, 3, 3, 3),
    Sketcher.Constraint("Horizontal", 2, 3, 4, 3),
    Sketcher.Constraint("Horizontal", 4, 3, 5, 3),
    Sketcher.Constraint("Horizontal", 3, 3, 6, 3),
    Sketcher.Constraint("Horizontal", 5, 3, 7, 3),
    Sketcher.Constraint("Horizontal", 8, 3, 9, 3),
    Sketcher.Constraint("Horizontal", 10, 3, 11, 3),
    Sketcher.Constraint("Horizontal", 9, 3, 12, 3),
    Sketcher.Constraint("Horizontal", 12, 3, 13, 3),
    Sketcher.Constraint("Horizontal", 15, 3, 16, 3),
    Sketcher.Constraint("Horizontal", 14, 3, 17, 3),
    Sketcher.Constraint("Horizontal", 17, 3, 18, 3),
    Sketcher.Constraint("Horizontal", 20, 3, 21, 3),
    Sketcher.Constraint("Horizontal", 21, 3, 22, 3),
    Sketcher.Constraint("Horizontal", 22, 3, 27, 3),
    Sketcher.Constraint("Horizontal", 27, 3, 28, 3),
    Sketcher.Constraint("Horizontal", 26, 3, 29, 3),
    Sketcher.Constraint("Horizontal", 29, 3, 30, 3),
    Sketcher.Constraint("Horizontal", 28, 3, 31, 3),
    Sketcher.Constraint("Horizontal", 31, 3, 33, 3),
    Sketcher.Constraint("Diameter", 0, Q("0.201 in")),
    Sketcher.Constraint("DistanceX", 0, 3, 1, 3, Q("2 in")),
    Sketcher.Constraint("DistanceY", 1, 3, 0, 3, Q("1 in")),
    Sketcher.Constraint("DistanceX", 2, 3, 0, 3, Q("1 in")),
    Sketcher.Constraint("DistanceX", 3, 3, 2, 3, Q("1 in")),
    Sketcher.Constraint("DistanceX", 1, 3, 4, 3, Q("15 in")),
    Sketcher.Constraint("DistanceX", 1, 3, 5, 3, Q("7 in")),
    Sketcher.Constraint("DistanceX", 0, 3, 7, 3, Q("1 in")),
    Sketcher.Constraint("DistanceX", 1, 3, 9, 3, Q("1 in")),
    Sketcher.Constraint("DistanceX", 11, 3, 3, 3, Q("1 in")),
    Sketcher.Constraint("DistanceX", 12, 3, 4, 3, Q("4 in")),
    Sketcher.Constraint("DistanceX", 9, 3, 13, 3, Q("2 in")),
    Sketcher.Constraint("DistanceX", 16, 3, 12, 3, Q("2 in")),
    Sketcher.Constraint("DistanceX", 17, 3, 4, 3, Q("2 in")),
    Sketcher.Constraint("DistanceX", 18, 3, 5, 3, Q("2 in")),
    Sketcher.Constraint("DistanceX", 21, 3, 4, 3, Q("1 in")),
    Sketcher.Constraint("DistanceX", 22, 3, 5, 3, Q("1 in")),
    Sketcher.Constraint("DistanceX", 27, 3, 12, 3, Q("1 in")),
    Sketcher.Constraint("DistanceX", 9, 3, 28, 3, Q("1 in")),
    Sketcher.Constraint("DistanceX", 4, 3, 29, 3, Q("1 in")),
    Sketcher.Constraint("DistanceX", 5, 3, 30, 3, Q("1 in")),
    Sketcher.Constraint("DistanceX", 12, 3, 31, 3, Q("1 in")),
    Sketcher.Constraint("DistanceX", 13, 3, 33, 3, Q("1 in")),
    Sketcher.Constraint("DistanceX", 0, 3, -1, 1, Q("18.5 in")),
])
doc.recompute()
hole3 = body2.newObject("PartDesign::Hole", "Hole002")
hole3.Profile = sketch8
hole3.ThreadType = "None"
hole3.Diameter = Q("0.201 in")
hole3.DepthType = "ThroughAll"

doc.recompute()
